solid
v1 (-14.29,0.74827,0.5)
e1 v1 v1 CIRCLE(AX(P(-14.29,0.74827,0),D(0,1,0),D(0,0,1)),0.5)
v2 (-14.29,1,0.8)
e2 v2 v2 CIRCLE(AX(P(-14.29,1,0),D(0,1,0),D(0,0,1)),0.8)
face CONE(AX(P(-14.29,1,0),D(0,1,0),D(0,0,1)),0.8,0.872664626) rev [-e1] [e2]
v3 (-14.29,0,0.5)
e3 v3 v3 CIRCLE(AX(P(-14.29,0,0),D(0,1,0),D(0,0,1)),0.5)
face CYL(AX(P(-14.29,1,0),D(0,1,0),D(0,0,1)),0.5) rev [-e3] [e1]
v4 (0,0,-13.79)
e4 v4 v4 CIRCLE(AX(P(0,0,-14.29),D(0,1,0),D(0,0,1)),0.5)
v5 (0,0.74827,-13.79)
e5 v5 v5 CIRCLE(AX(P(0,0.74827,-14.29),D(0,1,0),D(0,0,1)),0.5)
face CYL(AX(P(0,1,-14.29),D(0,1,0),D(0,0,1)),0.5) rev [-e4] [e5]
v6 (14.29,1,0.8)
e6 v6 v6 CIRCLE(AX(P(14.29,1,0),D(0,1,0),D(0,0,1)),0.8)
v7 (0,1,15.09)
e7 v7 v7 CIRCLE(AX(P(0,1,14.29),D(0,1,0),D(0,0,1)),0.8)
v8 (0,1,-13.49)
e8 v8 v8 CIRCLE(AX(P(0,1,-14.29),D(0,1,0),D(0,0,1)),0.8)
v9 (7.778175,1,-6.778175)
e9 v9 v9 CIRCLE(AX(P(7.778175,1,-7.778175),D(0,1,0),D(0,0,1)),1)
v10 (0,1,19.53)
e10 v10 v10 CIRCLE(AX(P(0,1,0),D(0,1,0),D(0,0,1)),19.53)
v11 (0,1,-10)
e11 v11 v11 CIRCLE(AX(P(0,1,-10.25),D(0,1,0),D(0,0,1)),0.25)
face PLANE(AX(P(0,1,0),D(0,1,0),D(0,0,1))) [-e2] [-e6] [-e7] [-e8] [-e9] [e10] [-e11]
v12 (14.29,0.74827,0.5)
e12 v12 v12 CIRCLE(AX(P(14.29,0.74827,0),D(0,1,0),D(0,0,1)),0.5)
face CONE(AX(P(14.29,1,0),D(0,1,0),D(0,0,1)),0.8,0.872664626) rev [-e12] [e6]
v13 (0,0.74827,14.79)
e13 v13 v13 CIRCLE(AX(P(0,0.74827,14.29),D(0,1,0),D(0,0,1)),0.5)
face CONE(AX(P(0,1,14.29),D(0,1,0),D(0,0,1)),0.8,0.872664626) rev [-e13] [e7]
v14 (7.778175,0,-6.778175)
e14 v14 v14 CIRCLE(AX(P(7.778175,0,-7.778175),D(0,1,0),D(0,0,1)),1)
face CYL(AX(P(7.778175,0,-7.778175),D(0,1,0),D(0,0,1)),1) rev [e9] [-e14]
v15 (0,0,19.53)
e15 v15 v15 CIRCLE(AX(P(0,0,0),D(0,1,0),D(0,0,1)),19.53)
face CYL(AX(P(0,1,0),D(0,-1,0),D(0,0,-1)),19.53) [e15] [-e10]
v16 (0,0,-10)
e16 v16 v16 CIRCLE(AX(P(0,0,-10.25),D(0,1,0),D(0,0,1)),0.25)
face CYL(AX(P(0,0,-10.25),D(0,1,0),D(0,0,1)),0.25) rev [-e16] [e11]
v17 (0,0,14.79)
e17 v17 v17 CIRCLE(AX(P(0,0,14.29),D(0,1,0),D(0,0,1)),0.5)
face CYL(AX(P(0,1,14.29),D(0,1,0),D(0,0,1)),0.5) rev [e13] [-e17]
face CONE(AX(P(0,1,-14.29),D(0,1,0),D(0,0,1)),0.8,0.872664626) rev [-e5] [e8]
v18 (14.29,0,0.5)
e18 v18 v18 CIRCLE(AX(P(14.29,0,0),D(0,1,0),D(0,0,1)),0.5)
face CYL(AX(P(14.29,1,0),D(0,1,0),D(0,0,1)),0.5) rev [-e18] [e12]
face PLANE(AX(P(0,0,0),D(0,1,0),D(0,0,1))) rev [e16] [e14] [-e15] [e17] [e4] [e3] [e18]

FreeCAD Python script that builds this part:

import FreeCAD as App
import Part
import Sketcher

doc = App.newDocument("Part")
body = doc.addObject("PartDesign::Body", "Body")

# Sketch on XZ plane
sketch1 = doc.addObject("Sketcher::SketchObject", "Sketch")
body.addObject(sketch1)
sketch1.AttachmentSupport = (doc.XZ_Plane, [""])
sketch1.MapMode = "FlatFace"
sketch1.addGeometry(Part.Circle(App.Vector(0, 0, 0), App.Vector(0, 0, 1), 20), False)
sketch1.addConstraint([
    Sketcher.Constraint("Coincident", 0, 3, -1, 1),
    Sketcher.Constraint("Diameter", 0, 39.06),
])
pad1 = doc.addObject("PartDesign::Pad", "Pad")
body.addObject(pad1)
pad1.Profile = sketch1
pad1.Length = 1
pad1.Reversed = True

# Sketch on XZ plane
sketch2 = doc.addObject("Sketcher::SketchObject", "Sketch001")
body.addObject(sketch2)
sketch2.AttachmentSupport = (doc.XZ_Plane, [""])
sketch2.MapMode = "FlatFace"
sketch2.AttachmentOffset = App.Placement(App.Vector(0, 0, -1), App.Rotation())
sketch2.addGeometry([
    Part.Circle(App.Vector(0, -10.25, 0), App.Vector(0, 0, 1), 0.25),
    Part.Circle(App.Vector(7.78, -7.78, 0), App.Vector(0, 0, 1), 1),
], False)
sketch2.addConstraint([
    Sketcher.Constraint("PointOnObject", 0, 3, -2),
    Sketcher.Constraint("Diameter", 1, 2.0),
    Sketcher.Constraint("Diameter", 0, 0.5),
    Sketcher.Constraint("DistanceY", 0, 3, -1, 1, 10.25),
    Sketcher.Constraint("DistanceX", -1, 1, 1, 3, 7.778175),
    Sketcher.Constraint("DistanceY", 1, 3, -1, 1, 7.778175),
])
pocket1 = doc.addObject("PartDesign::Pocket", "Pocket")
body.addObject(pocket1)
pocket1.Profile = sketch2
pocket1.Type = "ThroughAll"
pocket1.Midplane = True

# Sketch on XZ plane
sketch3 = doc.addObject("Sketcher::SketchObject", "Sketch002")
body.addObject(sketch3)
sketch3.AttachmentSupport = (doc.XZ_Plane, [""])
sketch3.MapMode = "FlatFace"
sketch3.AttachmentOffset = App.Placement(App.Vector(0, 0, -1), App.Rotation())
sketch3.addGeometry([
    Part.Circle(App.Vector(0, -14.3, 0), App.Vector(0, 0, 1), 0.5),
    Part.Circle(App.Vector(-14.3, 0, 0), App.Vector(0, 0, 1), 0.5),
    Part.Circle(App.Vector(0, 14.3, 0), App.Vector(0, 0, 1), 0.5),
    Part.Circle(App.Vector(14.3, 0, 0), App.Vector(0, 0, 1), 0.5),
], False)
sketch3.addConstraint([
    Sketcher.Constraint("Equal", 0, 1),
    Sketcher.Constraint("Equal", 1, 2),
    Sketcher.Constraint("Equal", 2, 3),
    Sketcher.Constraint("Symmetric", 0, 3, 2, 3, -1, 1),
    Sketcher.Constraint("Symmetric", 1, 3, 3, 3, -1, 1),
    Sketcher.Constraint("PointOnObject", 0, 3, -2),
    Sketcher.Constraint("PointOnObject", 1, 3, -1),
    Sketcher.Constraint("Diameter", 0, 1.0),
    Sketcher.Constraint("DistanceY", 0, 3, -1, 1, 14.29),
    Sketcher.Constraint("DistanceX", 1, 3, -1, 1, 14.29),
])
doc.recompute()
hole = doc.addObject("PartDesign::Hole", "Hole")
body.addObject(hole)
hole.Profile = sketch3
hole.ThreadType = "None"
hole.Diameter = 1
hole.DepthType = "ThroughAll"
hole.HoleCutType = "Countersink"
hole.HoleCutDiameter = 1.6
hole.HoleCutCountersinkAngle = 100
hole.Reversed = True

doc.recompute()
